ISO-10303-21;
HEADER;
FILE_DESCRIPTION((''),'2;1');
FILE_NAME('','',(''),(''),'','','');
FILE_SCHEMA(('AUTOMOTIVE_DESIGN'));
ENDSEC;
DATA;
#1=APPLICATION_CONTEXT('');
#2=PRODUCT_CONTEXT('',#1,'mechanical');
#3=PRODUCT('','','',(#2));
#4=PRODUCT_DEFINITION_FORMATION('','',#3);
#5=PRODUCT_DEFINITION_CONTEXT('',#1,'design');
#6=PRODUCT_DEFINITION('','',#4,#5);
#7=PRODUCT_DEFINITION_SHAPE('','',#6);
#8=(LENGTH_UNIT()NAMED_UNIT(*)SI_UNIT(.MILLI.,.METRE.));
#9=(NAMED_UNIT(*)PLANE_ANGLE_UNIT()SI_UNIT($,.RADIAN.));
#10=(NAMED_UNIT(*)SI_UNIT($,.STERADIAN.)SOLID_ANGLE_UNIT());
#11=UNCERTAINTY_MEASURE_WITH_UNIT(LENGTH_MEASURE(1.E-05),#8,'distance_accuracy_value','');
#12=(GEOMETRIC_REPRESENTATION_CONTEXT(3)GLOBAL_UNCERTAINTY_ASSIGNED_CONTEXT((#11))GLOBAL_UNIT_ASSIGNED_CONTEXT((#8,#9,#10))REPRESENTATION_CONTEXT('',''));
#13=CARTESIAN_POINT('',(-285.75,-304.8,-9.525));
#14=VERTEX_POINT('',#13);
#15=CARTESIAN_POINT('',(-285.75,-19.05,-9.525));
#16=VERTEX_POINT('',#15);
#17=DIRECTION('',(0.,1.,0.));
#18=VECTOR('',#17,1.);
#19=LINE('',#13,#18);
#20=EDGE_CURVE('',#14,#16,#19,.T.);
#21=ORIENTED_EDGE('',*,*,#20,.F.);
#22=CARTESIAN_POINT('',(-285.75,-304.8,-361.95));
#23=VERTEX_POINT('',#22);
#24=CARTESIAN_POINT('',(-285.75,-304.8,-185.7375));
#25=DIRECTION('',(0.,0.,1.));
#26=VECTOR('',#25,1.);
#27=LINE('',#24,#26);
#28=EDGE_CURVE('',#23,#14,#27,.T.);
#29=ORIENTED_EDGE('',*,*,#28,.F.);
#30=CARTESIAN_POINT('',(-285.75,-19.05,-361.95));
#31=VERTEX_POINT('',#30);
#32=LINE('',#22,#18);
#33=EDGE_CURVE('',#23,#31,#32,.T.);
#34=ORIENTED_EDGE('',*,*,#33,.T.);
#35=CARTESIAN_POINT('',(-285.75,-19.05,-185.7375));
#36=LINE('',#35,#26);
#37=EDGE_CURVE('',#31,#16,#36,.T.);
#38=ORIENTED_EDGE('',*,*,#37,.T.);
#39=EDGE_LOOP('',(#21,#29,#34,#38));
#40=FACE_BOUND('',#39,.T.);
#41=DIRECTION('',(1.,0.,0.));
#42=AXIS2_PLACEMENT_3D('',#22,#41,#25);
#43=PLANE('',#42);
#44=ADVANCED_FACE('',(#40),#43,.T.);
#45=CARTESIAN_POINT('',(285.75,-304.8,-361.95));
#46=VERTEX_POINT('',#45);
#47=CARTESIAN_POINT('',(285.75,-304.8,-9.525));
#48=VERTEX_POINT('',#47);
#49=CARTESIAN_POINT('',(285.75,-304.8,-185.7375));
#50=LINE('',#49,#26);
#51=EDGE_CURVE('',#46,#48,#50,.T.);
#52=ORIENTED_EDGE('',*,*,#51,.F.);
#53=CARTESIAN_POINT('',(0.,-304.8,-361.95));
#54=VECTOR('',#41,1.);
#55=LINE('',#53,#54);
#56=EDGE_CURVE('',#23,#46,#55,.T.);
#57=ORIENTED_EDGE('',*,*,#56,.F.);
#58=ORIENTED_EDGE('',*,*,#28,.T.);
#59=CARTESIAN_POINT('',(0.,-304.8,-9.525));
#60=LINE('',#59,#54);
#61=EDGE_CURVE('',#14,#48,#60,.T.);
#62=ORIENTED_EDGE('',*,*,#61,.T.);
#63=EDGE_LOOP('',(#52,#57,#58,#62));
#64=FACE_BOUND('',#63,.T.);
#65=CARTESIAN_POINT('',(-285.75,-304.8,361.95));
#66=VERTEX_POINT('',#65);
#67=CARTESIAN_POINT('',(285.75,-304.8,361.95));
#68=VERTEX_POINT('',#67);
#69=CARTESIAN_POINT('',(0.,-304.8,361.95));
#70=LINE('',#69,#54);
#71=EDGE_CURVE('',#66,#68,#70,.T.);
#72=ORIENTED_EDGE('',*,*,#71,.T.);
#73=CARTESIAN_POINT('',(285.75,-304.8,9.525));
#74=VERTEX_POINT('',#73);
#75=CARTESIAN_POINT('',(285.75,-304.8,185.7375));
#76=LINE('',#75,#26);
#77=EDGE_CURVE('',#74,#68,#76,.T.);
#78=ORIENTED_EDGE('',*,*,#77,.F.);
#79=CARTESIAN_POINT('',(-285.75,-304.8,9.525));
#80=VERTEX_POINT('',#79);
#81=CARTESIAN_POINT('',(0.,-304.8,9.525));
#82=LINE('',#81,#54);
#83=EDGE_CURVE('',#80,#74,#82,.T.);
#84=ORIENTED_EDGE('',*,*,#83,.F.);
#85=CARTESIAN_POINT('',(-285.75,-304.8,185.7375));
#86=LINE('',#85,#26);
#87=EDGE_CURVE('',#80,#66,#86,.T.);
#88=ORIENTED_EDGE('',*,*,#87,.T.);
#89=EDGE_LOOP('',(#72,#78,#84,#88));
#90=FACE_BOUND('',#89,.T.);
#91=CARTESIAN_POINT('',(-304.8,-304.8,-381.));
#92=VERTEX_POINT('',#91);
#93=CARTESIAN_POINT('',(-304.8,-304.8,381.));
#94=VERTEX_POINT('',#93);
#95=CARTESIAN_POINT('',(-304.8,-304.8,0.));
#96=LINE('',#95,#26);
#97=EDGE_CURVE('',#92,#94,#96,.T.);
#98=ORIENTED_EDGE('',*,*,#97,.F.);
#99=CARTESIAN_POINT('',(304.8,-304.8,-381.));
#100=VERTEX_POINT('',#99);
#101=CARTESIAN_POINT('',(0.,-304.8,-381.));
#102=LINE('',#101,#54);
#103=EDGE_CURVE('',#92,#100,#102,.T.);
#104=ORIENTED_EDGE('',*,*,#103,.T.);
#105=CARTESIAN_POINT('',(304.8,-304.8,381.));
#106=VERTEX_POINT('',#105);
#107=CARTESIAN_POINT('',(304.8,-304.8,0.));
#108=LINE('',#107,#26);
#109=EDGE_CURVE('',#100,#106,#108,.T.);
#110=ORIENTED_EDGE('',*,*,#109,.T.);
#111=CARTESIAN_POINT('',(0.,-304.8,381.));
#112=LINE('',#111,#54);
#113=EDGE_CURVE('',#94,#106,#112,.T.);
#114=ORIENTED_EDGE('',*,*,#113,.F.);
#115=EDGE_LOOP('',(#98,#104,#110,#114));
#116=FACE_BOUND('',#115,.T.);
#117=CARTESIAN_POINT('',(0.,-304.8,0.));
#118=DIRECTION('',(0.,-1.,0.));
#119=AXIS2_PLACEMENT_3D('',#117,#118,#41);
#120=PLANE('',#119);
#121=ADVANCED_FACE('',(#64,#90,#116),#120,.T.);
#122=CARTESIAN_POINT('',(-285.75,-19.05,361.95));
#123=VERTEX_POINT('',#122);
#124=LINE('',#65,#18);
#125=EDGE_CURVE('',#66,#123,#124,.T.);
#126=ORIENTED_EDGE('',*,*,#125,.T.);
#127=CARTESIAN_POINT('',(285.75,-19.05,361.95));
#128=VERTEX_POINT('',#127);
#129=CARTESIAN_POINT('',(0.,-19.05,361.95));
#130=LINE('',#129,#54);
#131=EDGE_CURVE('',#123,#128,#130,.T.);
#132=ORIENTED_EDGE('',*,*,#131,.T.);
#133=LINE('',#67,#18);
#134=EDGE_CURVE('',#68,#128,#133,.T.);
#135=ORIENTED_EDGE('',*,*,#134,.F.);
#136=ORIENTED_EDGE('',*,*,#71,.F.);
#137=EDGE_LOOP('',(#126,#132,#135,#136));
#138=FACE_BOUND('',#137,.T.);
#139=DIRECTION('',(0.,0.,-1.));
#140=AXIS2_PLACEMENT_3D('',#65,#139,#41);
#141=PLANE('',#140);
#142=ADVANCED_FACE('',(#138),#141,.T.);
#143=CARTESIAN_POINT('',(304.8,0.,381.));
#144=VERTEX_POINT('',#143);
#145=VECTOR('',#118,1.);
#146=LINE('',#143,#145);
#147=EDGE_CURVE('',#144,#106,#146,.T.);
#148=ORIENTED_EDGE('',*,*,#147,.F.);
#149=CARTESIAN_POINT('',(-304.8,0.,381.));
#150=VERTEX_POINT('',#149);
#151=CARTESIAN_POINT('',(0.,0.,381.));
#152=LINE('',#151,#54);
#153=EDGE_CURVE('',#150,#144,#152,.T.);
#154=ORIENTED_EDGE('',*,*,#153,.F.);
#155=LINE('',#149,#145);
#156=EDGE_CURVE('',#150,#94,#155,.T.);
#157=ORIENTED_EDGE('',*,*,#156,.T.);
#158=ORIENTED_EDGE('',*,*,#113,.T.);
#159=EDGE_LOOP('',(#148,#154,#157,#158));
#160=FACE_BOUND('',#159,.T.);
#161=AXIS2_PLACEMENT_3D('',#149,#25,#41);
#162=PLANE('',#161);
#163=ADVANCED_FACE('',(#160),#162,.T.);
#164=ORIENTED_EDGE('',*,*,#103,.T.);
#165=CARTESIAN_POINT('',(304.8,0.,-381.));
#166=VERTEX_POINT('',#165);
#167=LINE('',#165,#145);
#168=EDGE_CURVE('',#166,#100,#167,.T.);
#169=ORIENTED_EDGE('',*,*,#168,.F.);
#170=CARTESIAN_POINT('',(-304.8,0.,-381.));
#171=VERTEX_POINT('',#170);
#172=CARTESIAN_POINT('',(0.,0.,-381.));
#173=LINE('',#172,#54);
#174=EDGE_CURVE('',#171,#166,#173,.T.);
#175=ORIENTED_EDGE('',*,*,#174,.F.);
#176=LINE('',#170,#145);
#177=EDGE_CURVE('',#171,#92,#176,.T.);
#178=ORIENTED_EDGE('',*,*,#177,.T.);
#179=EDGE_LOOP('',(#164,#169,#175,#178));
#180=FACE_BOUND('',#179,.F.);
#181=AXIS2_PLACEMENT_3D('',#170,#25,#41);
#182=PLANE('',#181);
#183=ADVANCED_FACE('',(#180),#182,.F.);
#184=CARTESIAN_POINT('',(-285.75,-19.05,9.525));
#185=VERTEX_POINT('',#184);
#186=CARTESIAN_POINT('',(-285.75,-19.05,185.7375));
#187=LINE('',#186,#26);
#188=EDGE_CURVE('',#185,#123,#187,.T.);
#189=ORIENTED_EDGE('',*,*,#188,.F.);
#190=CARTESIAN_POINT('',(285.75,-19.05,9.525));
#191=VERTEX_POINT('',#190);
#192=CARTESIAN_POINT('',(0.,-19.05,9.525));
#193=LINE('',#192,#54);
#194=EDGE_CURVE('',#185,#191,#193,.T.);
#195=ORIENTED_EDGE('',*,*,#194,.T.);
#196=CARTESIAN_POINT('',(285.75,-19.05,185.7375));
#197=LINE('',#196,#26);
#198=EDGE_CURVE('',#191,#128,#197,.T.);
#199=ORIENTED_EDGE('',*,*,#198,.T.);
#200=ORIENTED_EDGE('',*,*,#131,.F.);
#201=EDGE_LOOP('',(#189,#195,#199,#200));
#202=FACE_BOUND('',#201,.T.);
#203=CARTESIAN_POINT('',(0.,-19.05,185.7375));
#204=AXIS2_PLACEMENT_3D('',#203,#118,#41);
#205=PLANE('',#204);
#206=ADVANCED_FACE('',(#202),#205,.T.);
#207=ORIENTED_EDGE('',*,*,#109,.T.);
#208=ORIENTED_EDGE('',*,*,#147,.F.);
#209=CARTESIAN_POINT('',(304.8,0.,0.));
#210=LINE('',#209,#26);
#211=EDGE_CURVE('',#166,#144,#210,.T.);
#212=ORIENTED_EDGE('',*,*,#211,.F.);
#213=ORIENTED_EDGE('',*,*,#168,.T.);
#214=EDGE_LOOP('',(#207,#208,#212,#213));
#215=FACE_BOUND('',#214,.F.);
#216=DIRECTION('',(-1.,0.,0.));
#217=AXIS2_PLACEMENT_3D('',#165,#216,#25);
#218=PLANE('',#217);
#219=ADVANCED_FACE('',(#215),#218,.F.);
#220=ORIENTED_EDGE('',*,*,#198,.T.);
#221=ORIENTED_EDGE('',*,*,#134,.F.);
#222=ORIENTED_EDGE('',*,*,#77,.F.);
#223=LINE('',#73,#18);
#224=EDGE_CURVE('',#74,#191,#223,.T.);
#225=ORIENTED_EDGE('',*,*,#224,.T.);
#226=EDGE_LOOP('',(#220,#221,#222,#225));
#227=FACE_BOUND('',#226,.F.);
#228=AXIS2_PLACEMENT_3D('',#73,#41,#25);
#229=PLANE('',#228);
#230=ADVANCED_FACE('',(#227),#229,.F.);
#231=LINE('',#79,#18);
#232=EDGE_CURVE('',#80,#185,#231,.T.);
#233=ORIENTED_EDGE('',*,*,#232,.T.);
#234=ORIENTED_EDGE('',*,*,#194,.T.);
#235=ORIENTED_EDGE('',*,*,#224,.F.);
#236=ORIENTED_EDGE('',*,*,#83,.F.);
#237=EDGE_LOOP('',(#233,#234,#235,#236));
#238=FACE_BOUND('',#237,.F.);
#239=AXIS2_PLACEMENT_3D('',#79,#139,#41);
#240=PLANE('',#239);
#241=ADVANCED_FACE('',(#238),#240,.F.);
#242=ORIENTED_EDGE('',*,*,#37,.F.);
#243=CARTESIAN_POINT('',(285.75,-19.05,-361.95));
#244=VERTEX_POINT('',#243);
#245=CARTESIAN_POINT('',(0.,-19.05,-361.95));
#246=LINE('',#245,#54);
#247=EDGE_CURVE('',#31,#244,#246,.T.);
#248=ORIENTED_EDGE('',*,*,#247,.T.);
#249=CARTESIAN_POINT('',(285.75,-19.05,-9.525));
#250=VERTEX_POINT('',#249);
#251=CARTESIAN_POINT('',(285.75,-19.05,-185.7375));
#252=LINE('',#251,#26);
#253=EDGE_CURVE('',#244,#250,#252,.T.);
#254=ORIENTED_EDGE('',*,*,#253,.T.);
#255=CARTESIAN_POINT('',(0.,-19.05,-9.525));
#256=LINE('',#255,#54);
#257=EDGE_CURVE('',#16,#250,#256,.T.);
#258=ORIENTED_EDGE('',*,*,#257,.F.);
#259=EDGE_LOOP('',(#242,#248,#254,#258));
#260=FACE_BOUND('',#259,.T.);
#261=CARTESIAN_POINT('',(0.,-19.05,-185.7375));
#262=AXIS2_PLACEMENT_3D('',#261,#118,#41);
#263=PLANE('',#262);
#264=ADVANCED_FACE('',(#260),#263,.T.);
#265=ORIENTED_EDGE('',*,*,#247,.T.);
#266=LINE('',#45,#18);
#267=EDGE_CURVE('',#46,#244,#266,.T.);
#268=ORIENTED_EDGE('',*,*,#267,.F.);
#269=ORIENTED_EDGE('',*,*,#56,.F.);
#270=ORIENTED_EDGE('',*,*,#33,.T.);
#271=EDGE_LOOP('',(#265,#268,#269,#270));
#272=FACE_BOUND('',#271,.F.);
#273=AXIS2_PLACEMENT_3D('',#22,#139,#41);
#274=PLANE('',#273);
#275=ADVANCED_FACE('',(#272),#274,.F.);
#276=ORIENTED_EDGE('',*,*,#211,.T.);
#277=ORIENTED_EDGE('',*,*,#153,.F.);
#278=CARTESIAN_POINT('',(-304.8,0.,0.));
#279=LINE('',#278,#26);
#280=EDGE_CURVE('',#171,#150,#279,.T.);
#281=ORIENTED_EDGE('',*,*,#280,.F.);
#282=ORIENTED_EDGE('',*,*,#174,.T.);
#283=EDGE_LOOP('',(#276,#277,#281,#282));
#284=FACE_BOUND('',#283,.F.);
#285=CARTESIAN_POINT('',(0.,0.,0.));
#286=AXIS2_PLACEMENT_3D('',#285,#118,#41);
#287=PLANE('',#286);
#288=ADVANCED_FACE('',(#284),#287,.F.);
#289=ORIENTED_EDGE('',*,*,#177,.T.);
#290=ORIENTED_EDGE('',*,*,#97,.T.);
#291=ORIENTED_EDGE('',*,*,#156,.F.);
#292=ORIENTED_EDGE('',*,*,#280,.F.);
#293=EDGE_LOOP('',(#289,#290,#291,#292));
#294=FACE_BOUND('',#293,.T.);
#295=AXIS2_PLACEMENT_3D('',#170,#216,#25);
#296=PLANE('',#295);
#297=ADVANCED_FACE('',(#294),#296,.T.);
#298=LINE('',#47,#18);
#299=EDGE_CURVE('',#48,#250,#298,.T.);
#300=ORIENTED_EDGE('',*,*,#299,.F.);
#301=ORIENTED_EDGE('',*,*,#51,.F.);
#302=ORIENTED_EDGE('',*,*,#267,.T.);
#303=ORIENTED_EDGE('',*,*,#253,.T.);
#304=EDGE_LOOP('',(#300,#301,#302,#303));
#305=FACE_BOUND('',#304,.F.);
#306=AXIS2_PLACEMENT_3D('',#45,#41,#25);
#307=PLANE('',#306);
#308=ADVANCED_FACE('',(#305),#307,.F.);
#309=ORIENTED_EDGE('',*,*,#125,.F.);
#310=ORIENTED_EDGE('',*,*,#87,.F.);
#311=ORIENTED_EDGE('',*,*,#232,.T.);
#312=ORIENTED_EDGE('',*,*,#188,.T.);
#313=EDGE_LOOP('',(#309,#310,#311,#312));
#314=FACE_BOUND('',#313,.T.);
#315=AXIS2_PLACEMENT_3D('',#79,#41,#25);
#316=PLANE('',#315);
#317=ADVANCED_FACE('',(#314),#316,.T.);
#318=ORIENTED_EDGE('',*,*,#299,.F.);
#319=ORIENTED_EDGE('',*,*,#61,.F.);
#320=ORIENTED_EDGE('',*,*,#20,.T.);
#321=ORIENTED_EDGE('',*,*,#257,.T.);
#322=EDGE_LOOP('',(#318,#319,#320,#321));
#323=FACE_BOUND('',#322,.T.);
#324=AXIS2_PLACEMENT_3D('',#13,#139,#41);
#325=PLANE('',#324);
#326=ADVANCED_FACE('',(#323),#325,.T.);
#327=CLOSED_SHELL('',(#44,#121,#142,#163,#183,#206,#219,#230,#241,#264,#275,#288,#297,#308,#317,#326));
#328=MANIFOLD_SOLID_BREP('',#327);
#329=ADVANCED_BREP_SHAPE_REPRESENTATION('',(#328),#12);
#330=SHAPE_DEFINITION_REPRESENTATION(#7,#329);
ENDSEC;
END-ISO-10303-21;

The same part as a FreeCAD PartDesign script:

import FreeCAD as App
import Part
import Sketcher
from FreeCAD import Vector
Q = App.Units.Quantity


def add_polygon(sketch, points):
    """Adds a closed chain of lines whose ends are joined by coincident constraints."""
    first, n = sketch.GeometryCount, len(points)
    for a, b in zip(points, points[1:] + points[:1]):
        sketch.addGeometry(Part.LineSegment(App.Vector(*a, 0), App.Vector(*b, 0)), False)
    for i in range(n):
        sketch.addConstraint(Sketcher.Constraint("Coincident", first + i, 2, first + (i + 1) % n, 1))

doc = App.newDocument("Part")
params = doc.addObject("Spreadsheet::Sheet", "Params")
for row, (alias, value) in enumerate([
    ("sketch1_width", "24 in"),
    ("sketch1_height", "30 in"),
    ("pad1_length", "12 in"),
    ("sketch2_width", "22.5 in"),
    ("sketch2_height", "13.875 in"),
    ("pocket1_length", "11.25 in"),
], start=1):
    params.set(f"A{row}", alias)
    params.set(f"B{row}", "=" + value)
    params.setAlias(f"B{row}", alias)

body = doc.addObject("PartDesign::Body", "Body")

# Sketch on XZ plane
sketch1 = body.newObject("Sketcher::SketchObject", "Sketch")
sketch1.AttachmentSupport = (doc.getObject("XZ_Plane"), [""])
sketch1.MapMode = "FlatFace"
add_polygon(sketch1, [(-304.8, 381), (-304.8, -381), (304.8, -381), (304.8, 381)])  # lines 0-3
sketch1.addConstraint(Sketcher.Constraint("Vertical", 0))
sketch1.addConstraint(Sketcher.Constraint("Horizontal", 1))
sketch1.addConstraint(Sketcher.Constraint("Vertical", 2))
sketch1.addConstraint(Sketcher.Constraint("Horizontal", 3))
sketch1.addConstraint(Sketcher.Constraint("Symmetric", 0, 2, 2, 2, -1, 1))
sketch1.addConstraint(Sketcher.Constraint("DistanceX", 1, 1, 1, 2, Q("24 in")))
sketch1.addConstraint(Sketcher.Constraint("DistanceY", 0, 2, 0, 1, Q("30 in")))
sketch1.setExpression("Constraints[9]", "Params.sketch1_width")
sketch1.setExpression("Constraints[10]", "Params.sketch1_height")
pad1 = body.newObject("PartDesign::Pad", "Pad")
pad1.Profile = sketch1
pad1.setExpression("Length", "Params.pad1_length")

# Sketch on XZ plane
sketch2 = body.newObject("Sketcher::SketchObject", "Sketch001")
sketch2.AttachmentSupport = (doc.getObject("XZ_Plane"), [""])
sketch2.MapMode = "FlatFace"
sketch2.AttachmentOffset = App.Placement(Vector(0, 0, 12 * 25.4), App.Rotation())
add_polygon(sketch2, [(-285.75, 361.95), (-285.75, 9.525), (285.75, 9.525), (285.75, 361.95)])  # lines 0-3
add_polygon(sketch2, [(-285.75, -9.525), (-285.75, -361.95), (285.75, -361.95), (285.75, -9.525)])  # lines 4-7
sketch2.addConstraint(Sketcher.Constraint("Vertical", 0))
sketch2.addConstraint(Sketcher.Constraint("Horizontal", 1))
sketch2.addConstraint(Sketcher.Constraint("Vertical", 2))
sketch2.addConstraint(Sketcher.Constraint("Horizontal", 3))
sketch2.addConstraint(Sketcher.Constraint("Vertical", 4))
sketch2.addConstraint(Sketcher.Constraint("Horizontal", 5))
sketch2.addConstraint(Sketcher.Constraint("Vertical", 6))
sketch2.addConstraint(Sketcher.Constraint("Horizontal", 7))
sketch2.addConstraint(Sketcher.Constraint("Symmetric", 2, 2, 4, 2, -1, 1))
sketch2.addConstraint(Sketcher.Constraint("Symmetric", 0, 2, 6, 2, -1, 1))
sketch2.addConstraint(Sketcher.Constraint("Vertical", 3, 2, 4, 2))
sketch2.addConstraint(Sketcher.Constraint("DistanceX", 1, 1, 1, 2, Q("22.5 in")))
sketch2.addConstraint(Sketcher.Constraint("DistanceY", 4, 2, 3, 2, Q("28.5 in")))
sketch2.addConstraint(Sketcher.Constraint("DistanceY", 0, 2, 0, 1, Q("13.875 in")))
sketch2.setExpression("Constraints[19]", "Params.sketch2_width")
sketch2.setExpression("Constraints[21]", "Params.sketch2_height")
pocket1 = body.newObject("PartDesign::Pocket", "Pocket")
pocket1.Profile = sketch2
pocket1.setExpression("Length", "Params.pocket1_length")

doc.recompute()
